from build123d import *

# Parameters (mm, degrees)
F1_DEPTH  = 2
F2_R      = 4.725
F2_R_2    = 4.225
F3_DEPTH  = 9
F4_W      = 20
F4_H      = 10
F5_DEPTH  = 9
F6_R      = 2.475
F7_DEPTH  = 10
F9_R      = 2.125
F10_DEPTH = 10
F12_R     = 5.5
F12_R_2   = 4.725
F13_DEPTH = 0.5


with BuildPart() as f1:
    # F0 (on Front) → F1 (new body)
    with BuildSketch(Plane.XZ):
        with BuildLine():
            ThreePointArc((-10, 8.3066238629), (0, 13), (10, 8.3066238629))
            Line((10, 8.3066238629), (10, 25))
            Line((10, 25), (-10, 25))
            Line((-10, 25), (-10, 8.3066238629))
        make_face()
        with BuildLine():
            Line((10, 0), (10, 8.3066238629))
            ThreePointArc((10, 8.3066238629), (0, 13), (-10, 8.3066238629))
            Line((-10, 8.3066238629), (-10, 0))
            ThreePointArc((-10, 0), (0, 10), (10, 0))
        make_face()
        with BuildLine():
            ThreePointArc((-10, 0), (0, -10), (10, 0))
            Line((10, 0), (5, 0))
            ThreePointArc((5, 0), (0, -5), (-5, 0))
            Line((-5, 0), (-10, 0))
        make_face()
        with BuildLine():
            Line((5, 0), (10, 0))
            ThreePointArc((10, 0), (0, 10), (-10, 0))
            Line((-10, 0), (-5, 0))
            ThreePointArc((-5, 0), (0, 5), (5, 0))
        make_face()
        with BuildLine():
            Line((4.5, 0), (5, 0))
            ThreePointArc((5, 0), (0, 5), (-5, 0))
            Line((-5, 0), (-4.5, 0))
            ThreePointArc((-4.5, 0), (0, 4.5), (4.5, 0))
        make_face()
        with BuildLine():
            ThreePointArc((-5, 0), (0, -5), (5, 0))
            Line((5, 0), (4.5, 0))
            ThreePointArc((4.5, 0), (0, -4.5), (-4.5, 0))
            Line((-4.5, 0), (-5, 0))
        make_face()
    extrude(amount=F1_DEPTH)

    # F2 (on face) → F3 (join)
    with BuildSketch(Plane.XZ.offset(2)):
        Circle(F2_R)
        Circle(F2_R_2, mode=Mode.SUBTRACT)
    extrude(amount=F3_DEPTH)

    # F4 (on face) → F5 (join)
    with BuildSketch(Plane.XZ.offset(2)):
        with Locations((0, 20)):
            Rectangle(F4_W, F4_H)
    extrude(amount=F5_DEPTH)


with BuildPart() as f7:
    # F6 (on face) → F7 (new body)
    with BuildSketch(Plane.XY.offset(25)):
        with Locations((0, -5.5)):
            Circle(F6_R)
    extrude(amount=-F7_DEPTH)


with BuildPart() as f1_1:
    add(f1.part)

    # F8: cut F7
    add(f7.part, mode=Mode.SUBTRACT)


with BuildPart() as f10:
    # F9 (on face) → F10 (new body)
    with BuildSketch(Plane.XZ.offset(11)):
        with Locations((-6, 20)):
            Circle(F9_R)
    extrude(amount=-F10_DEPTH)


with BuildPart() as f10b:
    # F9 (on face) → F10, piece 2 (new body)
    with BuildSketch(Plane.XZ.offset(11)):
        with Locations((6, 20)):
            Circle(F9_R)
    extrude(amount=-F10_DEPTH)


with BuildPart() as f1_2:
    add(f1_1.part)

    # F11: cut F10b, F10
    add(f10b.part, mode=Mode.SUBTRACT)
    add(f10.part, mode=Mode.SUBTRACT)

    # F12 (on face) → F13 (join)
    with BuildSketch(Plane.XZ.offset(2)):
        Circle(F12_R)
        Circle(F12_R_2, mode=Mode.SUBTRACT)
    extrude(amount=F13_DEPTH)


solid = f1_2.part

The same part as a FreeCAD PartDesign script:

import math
import FreeCAD as App
import Part
import Sketcher

V = App.Vector
Q = App.Units.Quantity


def add_polygon(sketch, points):
    """Adds a closed chain of lines whose ends are joined by coincident constraints."""
    first, n = sketch.GeometryCount, len(points)
    for a, b in zip(points, points[1:] + points[:1]):
        sketch.addGeometry(Part.LineSegment(App.Vector(*a, 0), App.Vector(*b, 0)), False)
    for i in range(n):
        sketch.addConstraint(Sketcher.Constraint("Coincident", first + i, 2, first + (i + 1) % n, 1))

doc = App.newDocument("Part")
body = doc.addObject("PartDesign::Body", "Body")

# Sketch on XZ plane
sketch1 = doc.addObject("Sketcher::SketchObject", "Sketch")
body.addObject(sketch1)
sketch1.AttachmentSupport = (doc.XZ_Plane, [""])
sketch1.MapMode = "FlatFace"
sketch1.addGeometry([
    Part.LineSegment(V(10, 25, 0), V(-10, 25, 0)),  # 0
    Part.LineSegment(V(-10, 25, 0), V(-10, 0, 0)),  # 1
    Part.ArcOfCircle(Part.Circle(V(0, 0, 0), V(0, 0, 1), 10), math.radians(180), math.radians(360)),  # 2
    Part.LineSegment(V(10, 0, 0), V(10, 25, 0)),  # 3
    Part.Circle(V(0, 0, 0), V(0, 0, 1), 4.5),  # 4
], False)
sketch1.addConstraint([
    Sketcher.Constraint("Coincident", 0, 2, 1, 1),
    Sketcher.Constraint("Tangent", 1, 2, 2, 1),
    Sketcher.Constraint("Tangent", 2, 2, 3, 1),
    Sketcher.Constraint("Coincident", 3, 2, 0, 1),
    Sketcher.Constraint("Horizontal", 0),
    Sketcher.Constraint("Vertical", 1),
    Sketcher.Constraint("Vertical", 3),
    Sketcher.Constraint("Coincident", 2, 3, -1, 1),
    Sketcher.Constraint("Coincident", 4, 3, -1, 1),
    Sketcher.Constraint("Diameter", 4, Q("9 mm")),
    Sketcher.Constraint("Radius", 2, Q("10 mm")),
    Sketcher.Constraint("DistanceY", 1, 2, 1, 1, Q("25 mm")),
])
pad1 = doc.addObject("PartDesign::Pad", "Pad")
body.addObject(pad1)
pad1.Profile = sketch1
pad1.Length = 2

# Sketch on XZ plane
sketch2 = doc.addObject("Sketcher::SketchObject", "Sketch001")
body.addObject(sketch2)
sketch2.AttachmentSupport = (doc.XZ_Plane, [""])
sketch2.MapMode = "FlatFace"
sketch2.AttachmentOffset = App.Placement(V(0, 0, 2), App.Rotation())
sketch2.addGeometry([
    Part.Circle(V(0, 0, 0), V(0, 0, 1), 4.7),
    Part.Circle(V(0, 0, 0), V(0, 0, 1), 4.2),
], False)
sketch2.addConstraint([
    Sketcher.Constraint("Coincident", 0, 3, -1, 1),
    Sketcher.Constraint("Coincident", 1, 3, -1, 1),
    Sketcher.Constraint("Diameter", 0, Q("9.45 mm")),
    Sketcher.Constraint("Diameter", 1, Q("8.45 mm")),
])
pad2 = doc.addObject("PartDesign::Pad", "Pad001")
body.addObject(pad2)
pad2.Profile = sketch2
pad2.Length = 9

# Sketch on XZ plane
sketch3 = doc.addObject("Sketcher::SketchObject", "Sketch002")
body.addObject(sketch3)
sketch3.AttachmentSupport = (doc.XZ_Plane, [""])
sketch3.MapMode = "FlatFace"
sketch3.AttachmentOffset = App.Placement(V(0, 0, 2), App.Rotation())
add_polygon(sketch3, [(-10, 25), (-10, 15), (10, 15), (10, 25)])  # lines 0-3
sketch3.addConstraint([
    Sketcher.Constraint("Vertical", 0),
    Sketcher.Constraint("Horizontal", 1),
    Sketcher.Constraint("Vertical", 2),
    Sketcher.Constraint("Horizontal", 3),
    Sketcher.Constraint("DistanceX", 1, 1, 1, 2, Q("20 mm")),
    Sketcher.Constraint("DistanceY", 0, 2, 0, 1, Q("10 mm")),
    Sketcher.Constraint("DistanceX", 0, 2, -1, 1, Q("10 mm")),
    Sketcher.Constraint("DistanceY", -1, 1, 0, 2, Q("15 mm")),
])
pad3 = doc.addObject("PartDesign::Pad", "Pad002")
body.addObject(pad3)
pad3.Profile = sketch3
pad3.Length = 9
body2 = doc.addObject("PartDesign::Body", "Body001")

# Sketch on XY plane
sketch4 = doc.addObject("Sketcher::SketchObject", "Sketch003")
body2.addObject(sketch4)
sketch4.AttachmentSupport = (doc.getObject("XY_Plane001"), [""])
sketch4.MapMode = "FlatFace"
sketch4.AttachmentOffset = App.Placement(V(0, 0, 25), App.Rotation())
sketch4.addGeometry(Part.Circle(V(0, -5.5, 0), V(0, 0, 1), 2.5), False)
sketch4.addConstraint([
    Sketcher.Constraint("PointOnObject", 0, 3, -2),
    Sketcher.Constraint("Diameter", 0, Q("4.95 mm")),
    Sketcher.Constraint("DistanceY", 0, 3, -1, 1, Q("5.5 mm")),
])
pad4 = doc.addObject("PartDesign::Pad", "Pad003")
body2.addObject(pad4)
pad4.Profile = sketch4
pad4.Length = 10
pad4.Reversed = True
doc.recompute()

boolean = doc.addObject("PartDesign::Boolean", "Boolean")
body.addObject(boolean)
boolean.Type = "Cut"
boolean.addObjects([body2])
body3 = doc.addObject("PartDesign::Body", "Body002")

# Sketch on XZ plane
sketch5 = doc.addObject("Sketcher::SketchObject", "Sketch004")
body3.addObject(sketch5)
sketch5.AttachmentSupport = (doc.getObject("XZ_Plane002"), [""])
sketch5.MapMode = "FlatFace"
sketch5.AttachmentOffset = App.Placement(V(0, 0, 11), App.Rotation())
sketch5.addGeometry(Part.Circle(V(-6, 20, 0), V(0, 0, 1), 2.1), False)
sketch5.addConstraint([
    Sketcher.Constraint("Diameter", 0, Q("4.25 mm")),
    Sketcher.Constraint("DistanceX", 0, 3, -1, 1, Q("6 mm")),
    Sketcher.Constraint("DistanceY", -1, 1, 0, 3, Q("20 mm")),
])
pad5 = doc.addObject("PartDesign::Pad", "Pad004")
body3.addObject(pad5)
pad5.Profile = sketch5
pad5.Length = 10
pad5.Reversed = True
body4 = doc.addObject("PartDesign::Body", "Body003")

# Sketch on XZ plane
sketch6 = doc.addObject("Sketcher::SketchObject", "Sketch005")
body4.addObject(sketch6)
sketch6.AttachmentSupport = (doc.getObject("XZ_Plane003"), [""])
sketch6.MapMode = "FlatFace"
sketch6.AttachmentOffset = App.Placement(V(0, 0, 11), App.Rotation())
sketch6.addGeometry(Part.Circle(V(6, 20, 0), V(0, 0, 1), 2.1), False)
sketch6.addConstraint([
    Sketcher.Constraint("Diameter", 0, Q("4.25 mm")),
    Sketcher.Constraint("DistanceX", -1, 1, 0, 3, Q("6 mm")),
    Sketcher.Constraint("DistanceY", -1, 1, 0, 3, Q("20 mm")),
])
pad6 = doc.addObject("PartDesign::Pad", "Pad005")
body4.addObject(pad6)
pad6.Profile = sketch6
pad6.Length = 10
pad6.Reversed = True
doc.recompute()

boolean2 = doc.addObject("PartDesign::Boolean", "Boolean001")
body.addObject(boolean2)
boolean2.Type = "Cut"
boolean2.addObjects([body4])
doc.recompute()

boolean3 = doc.addObject("PartDesign::Boolean", "Boolean002")
body.addObject(boolean3)
boolean3.Type = "Cut"
boolean3.addObjects([body3])

# Sketch on XZ plane
sketch7 = doc.addObject("Sketcher::SketchObject", "Sketch006")
body.addObject(sketch7)
sketch7.AttachmentSupport = (doc.XZ_Plane, [""])
sketch7.MapMode = "FlatFace"
sketch7.AttachmentOffset = App.Placement(V(0, 0, 2), App.Rotation())
sketch7.addGeometry([
    Part.Circle(V(0, 0, 0), V(0, 0, 1), 5.5),
    Part.Circle(V(0, 0, 0), V(0, 0, 1), 4.7),
], False)
sketch7.addConstraint([
    Sketcher.Constraint("Coincident", 0, 3, -1, 1),
    Sketcher.Constraint("Coincident", 1, 3, -1, 1),
    Sketcher.Constraint("Diameter", 0, Q("11 mm")),
    Sketcher.Constraint("Diameter", 1, Q("9.45 mm")),
])
pad7 = doc.addObject("PartDesign::Pad", "Pad006")
body.addObject(pad7)
pad7.Profile = sketch7
pad7.Length = 0.5

doc.recompute()
